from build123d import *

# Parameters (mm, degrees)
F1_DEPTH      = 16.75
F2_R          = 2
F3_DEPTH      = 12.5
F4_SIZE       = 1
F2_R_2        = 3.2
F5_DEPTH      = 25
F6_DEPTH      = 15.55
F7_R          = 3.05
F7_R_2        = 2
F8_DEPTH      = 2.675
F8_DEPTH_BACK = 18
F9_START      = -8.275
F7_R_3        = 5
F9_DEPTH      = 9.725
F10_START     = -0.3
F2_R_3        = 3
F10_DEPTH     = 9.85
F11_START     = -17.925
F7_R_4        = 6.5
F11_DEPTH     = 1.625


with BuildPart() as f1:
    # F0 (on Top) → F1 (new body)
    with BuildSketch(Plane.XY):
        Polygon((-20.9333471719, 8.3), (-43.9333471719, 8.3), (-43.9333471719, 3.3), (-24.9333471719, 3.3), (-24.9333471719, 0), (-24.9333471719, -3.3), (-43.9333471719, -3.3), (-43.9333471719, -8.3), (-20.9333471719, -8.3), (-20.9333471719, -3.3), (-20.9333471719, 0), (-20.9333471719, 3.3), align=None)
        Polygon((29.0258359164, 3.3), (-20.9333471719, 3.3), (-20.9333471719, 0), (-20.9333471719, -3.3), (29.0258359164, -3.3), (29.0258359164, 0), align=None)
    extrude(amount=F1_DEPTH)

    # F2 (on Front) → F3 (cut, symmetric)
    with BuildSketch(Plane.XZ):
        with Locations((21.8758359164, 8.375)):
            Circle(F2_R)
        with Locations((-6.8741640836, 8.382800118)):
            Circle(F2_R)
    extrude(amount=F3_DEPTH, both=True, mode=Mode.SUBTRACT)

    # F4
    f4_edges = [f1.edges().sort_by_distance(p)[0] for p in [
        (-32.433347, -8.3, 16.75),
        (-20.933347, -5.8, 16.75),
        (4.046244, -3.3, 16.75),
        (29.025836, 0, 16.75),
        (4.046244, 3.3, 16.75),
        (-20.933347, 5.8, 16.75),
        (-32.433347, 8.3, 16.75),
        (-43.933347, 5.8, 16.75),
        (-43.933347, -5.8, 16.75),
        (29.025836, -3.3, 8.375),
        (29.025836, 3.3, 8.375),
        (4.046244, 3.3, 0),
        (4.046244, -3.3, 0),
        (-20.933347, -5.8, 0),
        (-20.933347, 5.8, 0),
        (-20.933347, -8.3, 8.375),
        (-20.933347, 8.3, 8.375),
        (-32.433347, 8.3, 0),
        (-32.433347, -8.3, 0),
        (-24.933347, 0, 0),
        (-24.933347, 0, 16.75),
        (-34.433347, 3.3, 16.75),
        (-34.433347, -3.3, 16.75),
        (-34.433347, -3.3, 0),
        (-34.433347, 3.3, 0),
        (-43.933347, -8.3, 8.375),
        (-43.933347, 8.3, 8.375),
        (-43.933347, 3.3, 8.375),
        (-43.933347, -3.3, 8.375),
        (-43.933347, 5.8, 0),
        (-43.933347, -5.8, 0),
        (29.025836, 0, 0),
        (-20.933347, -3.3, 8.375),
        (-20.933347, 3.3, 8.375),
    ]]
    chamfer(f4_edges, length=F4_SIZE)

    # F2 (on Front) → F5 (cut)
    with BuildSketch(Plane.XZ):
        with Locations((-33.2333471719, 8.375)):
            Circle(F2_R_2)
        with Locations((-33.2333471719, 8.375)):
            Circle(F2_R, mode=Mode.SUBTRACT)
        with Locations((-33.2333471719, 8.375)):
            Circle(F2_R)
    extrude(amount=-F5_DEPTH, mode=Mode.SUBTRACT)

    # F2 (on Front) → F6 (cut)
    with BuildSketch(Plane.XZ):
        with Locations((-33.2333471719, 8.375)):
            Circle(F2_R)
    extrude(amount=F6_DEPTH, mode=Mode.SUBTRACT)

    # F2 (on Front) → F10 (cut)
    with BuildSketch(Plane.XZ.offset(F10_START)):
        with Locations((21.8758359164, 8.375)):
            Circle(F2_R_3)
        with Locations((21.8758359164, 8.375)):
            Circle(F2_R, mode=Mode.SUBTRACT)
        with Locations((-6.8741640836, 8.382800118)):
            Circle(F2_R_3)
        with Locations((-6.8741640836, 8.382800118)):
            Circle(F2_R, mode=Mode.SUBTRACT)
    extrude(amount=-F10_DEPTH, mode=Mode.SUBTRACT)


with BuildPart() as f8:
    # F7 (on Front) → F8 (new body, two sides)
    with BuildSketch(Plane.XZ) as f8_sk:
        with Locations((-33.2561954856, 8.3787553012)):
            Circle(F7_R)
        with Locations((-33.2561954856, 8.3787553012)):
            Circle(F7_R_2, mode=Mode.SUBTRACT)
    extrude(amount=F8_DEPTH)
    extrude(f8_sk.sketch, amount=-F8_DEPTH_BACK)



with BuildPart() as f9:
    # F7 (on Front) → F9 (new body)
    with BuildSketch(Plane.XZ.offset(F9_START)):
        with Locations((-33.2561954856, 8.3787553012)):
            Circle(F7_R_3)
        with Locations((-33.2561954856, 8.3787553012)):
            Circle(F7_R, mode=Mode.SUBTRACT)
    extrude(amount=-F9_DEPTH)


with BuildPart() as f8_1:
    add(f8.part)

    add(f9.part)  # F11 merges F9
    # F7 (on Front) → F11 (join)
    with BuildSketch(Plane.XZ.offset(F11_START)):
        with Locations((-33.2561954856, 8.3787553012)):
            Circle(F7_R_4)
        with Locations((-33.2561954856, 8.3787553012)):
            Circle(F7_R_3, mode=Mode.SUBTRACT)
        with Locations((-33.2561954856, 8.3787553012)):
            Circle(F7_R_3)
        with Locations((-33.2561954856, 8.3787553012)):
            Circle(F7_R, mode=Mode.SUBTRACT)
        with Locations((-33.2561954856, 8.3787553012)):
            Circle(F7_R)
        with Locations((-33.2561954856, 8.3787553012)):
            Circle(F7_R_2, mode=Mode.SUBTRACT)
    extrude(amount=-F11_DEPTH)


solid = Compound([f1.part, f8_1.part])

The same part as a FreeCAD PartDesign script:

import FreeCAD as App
import Part
import Sketcher
from FreeCAD import Vector


def edges_at(feature, points):
    """Names of the edges that pass closest to the given points."""
    edges = feature.Shape.Edges
    near = lambda p: min(range(len(edges)), key=lambda i: edges[i].distToShape(Part.Vertex(*p))[0])
    return sorted({f"Edge{near(p) + 1}" for p in points})


def add_polygon(sketch, points):
    """Adds a closed chain of lines whose ends are joined by coincident constraints."""
    first, n = sketch.GeometryCount, len(points)
    for a, b in zip(points, points[1:] + points[:1]):
        sketch.addGeometry(Part.LineSegment(App.Vector(*a, 0), App.Vector(*b, 0)), False)
    for i in range(n):
        sketch.addConstraint(Sketcher.Constraint("Coincident", first + i, 2, first + (i + 1) % n, 1))

doc = App.newDocument("Part")
body = doc.addObject("PartDesign::Body", "Body")

sketch1 = body.newObject("Sketcher::SketchObject", "Sketch")
sketch1.AttachmentSupport = (doc.getObject("XY_Plane"), [""])
sketch1.MapMode = "FlatFace"
add_polygon(sketch1, [(-20.933347, 8.3), (-43.933347, 8.3), (-43.933347, 3.3), (-24.933347, 3.3), (-24.933347, -3.3), (-43.933347, -3.3), (-43.933347, -8.3), (-20.933347, -8.3), (-20.933347, -3.3), (29.025836, -3.3), (29.025836, 3.3), (-20.933347, 3.3)])
sketch1.addConstraint(Sketcher.Constraint("Horizontal", 0))
sketch1.addConstraint(Sketcher.Constraint("Vertical", 1))
sketch1.addConstraint(Sketcher.Constraint("Horizontal", 2))
sketch1.addConstraint(Sketcher.Constraint("Vertical", 3))
sketch1.addConstraint(Sketcher.Constraint("Horizontal", 4))
sketch1.addConstraint(Sketcher.Constraint("Vertical", 5))
sketch1.addConstraint(Sketcher.Constraint("Horizontal", 6))
sketch1.addConstraint(Sketcher.Constraint("Vertical", 7))
sketch1.addConstraint(Sketcher.Constraint("Horizontal", 8))
sketch1.addConstraint(Sketcher.Constraint("Vertical", 9))
sketch1.addConstraint(Sketcher.Constraint("Horizontal", 10))
sketch1.addConstraint(Sketcher.Constraint("Vertical", 11))
sketch1.addConstraint(Sketcher.Constraint("Symmetric", 1, 2, 4, 2, -1))
sketch1.addConstraint(Sketcher.Constraint("Symmetric", 7, 2, 10, 2, -1))
sketch1.addConstraint(Sketcher.Constraint("Horizontal", 4, 2, 7, 2))
sketch1.addConstraint(Sketcher.Constraint("Equal", 1, 5))
sketch1.addConstraint(Sketcher.Constraint("DistanceX", 0, 2, 0, 1, 23.0))
sketch1.addConstraint(Sketcher.Constraint("DistanceX", 2, 1, 2, 2, 19.0))
sketch1.addConstraint(Sketcher.Constraint("DistanceY", 1, 2, 1, 1, 5.0))
sketch1.addConstraint(Sketcher.Constraint("DistanceY", 3, 2, 3, 1, 6.6))
sketch1.addConstraint(Sketcher.Constraint("DistanceX", 8, 1, 8, 2, 49.959183))
sketch1.addConstraint(Sketcher.Constraint("DistanceX", 0, 2, -1, 1, 43.933347))
pad1 = body.newObject("PartDesign::Pad", "Pad")
pad1.Profile = sketch1
pad1.Length = 16.75

sketch2 = body.newObject("Sketcher::SketchObject", "Sketch001")
sketch2.AttachmentSupport = (doc.getObject("XZ_Plane"), [""])
sketch2.MapMode = "FlatFace"
sketch2.addGeometry(Part.Circle(Vector(21.875836, 8.375, 0), Vector(0, 0, 1), 2), False)
sketch2.addGeometry(Part.Circle(Vector(-6.874164, 8.3828, 0), Vector(0, 0, 1), 2), False)
sketch2.addConstraint(Sketcher.Constraint("Equal", 0, 1))
sketch2.addConstraint(Sketcher.Constraint("Diameter", 0, 4.0))
sketch2.addConstraint(Sketcher.Constraint("DistanceX", 1, 3, 0, 3, 28.75))
sketch2.addConstraint(Sketcher.Constraint("DistanceY", -1, 1, 0, 3, 8.375))
sketch2.addConstraint(Sketcher.Constraint("DistanceY", -1, 1, 1, 3, 8.3828))
sketch2.addConstraint(Sketcher.Constraint("DistanceX", -1, 1, 0, 3, 21.875836))
pocket1 = body.newObject("PartDesign::Pocket", "Pocket")
pocket1.Profile = sketch2
pocket1.Length = 25
pocket1.Midplane = True
doc.recompute()

chamfer = body.newObject("PartDesign::Chamfer", "Chamfer")
chamfer.Base = (pocket1, edges_at(pocket1, [
    (-32.433, -8.3, 16.75),
    (-20.933, -5.8, 16.75),
    (4.046, -3.3, 16.75),
    (29.026, 0, 16.75),
    (4.046, 3.3, 16.75),
    (-20.933, 5.8, 16.75),
    (-32.433, 8.3, 16.75),
    (-43.933, 5.8, 16.75),
    (-43.933, -5.8, 16.75),
    (29.026, -3.3, 8.375),
    (29.026, 3.3, 8.375),
    (4.046, 3.3, 0),
    (4.046, -3.3, 0),
    (-20.933, -5.8, 0),
    (-20.933, 5.8, 0),
    (-20.933, -8.3, 8.375),
    (-20.933, 8.3, 8.375),
    (-32.433, 8.3, 0),
    (-32.433, -8.3, 0),
    (-24.933, 0, 0),
    (-24.933, 0, 16.75),
    (-34.433, 3.3, 16.75),
    (-34.433, -3.3, 16.75),
    (-34.433, -3.3, 0),
    (-34.433, 3.3, 0),
    (-43.933, -8.3, 8.375),
    (-43.933, 8.3, 8.375),
    (-43.933, 3.3, 8.375),
    (-43.933, -3.3, 8.375),
    (-43.933, 5.8, 0),
    (-43.933, -5.8, 0),
    (29.026, 0, 0),
    (-20.933, -3.3, 8.375),
    (-20.933, 3.3, 8.375),
]))
chamfer.Size = 1

sketch3 = body.newObject("Sketcher::SketchObject", "Sketch002")
sketch3.AttachmentSupport = (doc.getObject("XZ_Plane"), [""])
sketch3.MapMode = "FlatFace"
sketch3.addGeometry(Part.Circle(Vector(-33.233347, 8.375, 0), Vector(0, 0, 1), 3.2), False)
sketch3.addConstraint(Sketcher.Constraint("Diameter", 0, 6.4))
sketch3.addConstraint(Sketcher.Constraint("DistanceY", -1, 1, 0, 3, 8.375))
sketch3.addConstraint(Sketcher.Constraint("DistanceX", 0, 3, -1, 1, 33.233347))
pocket2 = body.newObject("PartDesign::Pocket", "Pocket001")
pocket2.Profile = sketch3
pocket2.Length = 25

sketch4 = body.newObject("Sketcher::SketchObject", "Sketch003")
sketch4.AttachmentSupport = (doc.getObject("XZ_Plane"), [""])
sketch4.MapMode = "FlatFace"
sketch4.addGeometry(Part.Circle(Vector(-33.233347, 8.375, 0), Vector(0, 0, 1), 2), False)
sketch4.addConstraint(Sketcher.Constraint("Diameter", 0, 4.0))
sketch4.addConstraint(Sketcher.Constraint("DistanceY", -1, 1, 0, 3, 8.375))
sketch4.addConstraint(Sketcher.Constraint("DistanceX", 0, 3, -1, 1, 33.233347))
pocket3 = body.newObject("PartDesign::Pocket", "Pocket002")
pocket3.Profile = sketch4
pocket3.Length = 15.55
pocket3.Reversed = True

sketch5 = body.newObject("Sketcher::SketchObject", "Sketch004")
sketch5.AttachmentSupport = (doc.getObject("XZ_Plane"), [""])
sketch5.MapMode = "FlatFace"
sketch5.AttachmentOffset = App.Placement(Vector(0, 0, -0.3), App.Rotation())
sketch5.addGeometry(Part.Circle(Vector(21.875836, 8.375, 0), Vector(0, 0, 1), 3), False)
sketch5.addGeometry(Part.Circle(Vector(21.875836, 8.375, 0), Vector(0, 0, 1), 2), False)
sketch5.addGeometry(Part.Circle(Vector(-6.874164, 8.3828, 0), Vector(0, 0, 1), 3), False)
sketch5.addGeometry(Part.Circle(Vector(-6.874164, 8.3828, 0), Vector(0, 0, 1), 2), False)
sketch5.addConstraint(Sketcher.Constraint("Coincident", 1, 3, 0, 3))
sketch5.addConstraint(Sketcher.Constraint("Coincident", 3, 3, 2, 3))
sketch5.addConstraint(Sketcher.Constraint("Equal", 0, 2))
sketch5.addConstraint(Sketcher.Constraint("Equal", 1, 3))
sketch5.addConstraint(Sketcher.Constraint("Diameter", 0, 6.0))
sketch5.addConstraint(Sketcher.Constraint("Diameter", 1, 4.0))
sketch5.addConstraint(Sketcher.Constraint("DistanceX", 2, 3, 0, 3, 28.75))
sketch5.addConstraint(Sketcher.Constraint("DistanceY", -1, 1, 0, 3, 8.375))
sketch5.addConstraint(Sketcher.Constraint("DistanceY", -1, 1, 2, 3, 8.3828))
sketch5.addConstraint(Sketcher.Constraint("DistanceX", -1, 1, 0, 3, 21.875836))
pocket4 = body.newObject("PartDesign::Pocket", "Pocket003")
pocket4.Profile = sketch5
pocket4.Length = 9.85
body2 = doc.addObject("PartDesign::Body", "Body001")

sketch6 = body2.newObject("Sketcher::SketchObject", "Sketch005")
sketch6.AttachmentSupport = (doc.getObject("XZ_Plane001"), [""])
sketch6.MapMode = "FlatFace"
sketch6.addGeometry(Part.Circle(Vector(-33.256195, 8.378755, 0), Vector(0, 0, 1), 3.05), False)
sketch6.addGeometry(Part.Circle(Vector(-33.256195, 8.378755, 0), Vector(0, 0, 1), 2), False)
sketch6.addConstraint(Sketcher.Constraint("Coincident", 1, 3, 0, 3))
sketch6.addConstraint(Sketcher.Constraint("Diameter", 1, 4.0))
sketch6.addConstraint(Sketcher.Constraint("Diameter", 0, 6.1))
sketch6.addConstraint(Sketcher.Constraint("DistanceX", 0, 3, -1, 1, 33.256195))
sketch6.addConstraint(Sketcher.Constraint("DistanceY", -1, 1, 0, 3, 8.378755))
pad2 = body2.newObject("PartDesign::Pad", "Pad001")
pad2.Profile = sketch6
pad2.Type = "TwoLengths"
pad2.Length = 2.675
pad2.Length2 = 18
body3 = doc.addObject("PartDesign::Body", "Body002")

sketch7 = body3.newObject("Sketcher::SketchObject", "Sketch006")
sketch7.AttachmentSupport = (doc.getObject("XZ_Plane002"), [""])
sketch7.MapMode = "FlatFace"
sketch7.AttachmentOffset = App.Placement(Vector(0, 0, -8.275), App.Rotation())
sketch7.addGeometry(Part.Circle(Vector(-33.256195, 8.378755, 0), Vector(0, 0, 1), 5), False)
sketch7.addGeometry(Part.Circle(Vector(-33.256195, 8.378755, 0), Vector(0, 0, 1), 3.05), False)
sketch7.addConstraint(Sketcher.Constraint("Coincident", 1, 3, 0, 3))
sketch7.addConstraint(Sketcher.Constraint("Diameter", 0, 10.0))
sketch7.addConstraint(Sketcher.Constraint("Diameter", 1, 6.1))
sketch7.addConstraint(Sketcher.Constraint("DistanceX", 0, 3, -1, 1, 33.256195))
sketch7.addConstraint(Sketcher.Constraint("DistanceY", -1, 1, 0, 3, 8.378755))
pad3 = body3.newObject("PartDesign::Pad", "Pad002")
pad3.Profile = sketch7
pad3.Length = 9.725
pad3.Reversed = True
doc.recompute()

boolean = body2.newObject("PartDesign::Boolean", "Boolean")
boolean.Type = "Fuse"
boolean.addObjects([body3])

sketch8 = body2.newObject("Sketcher::SketchObject", "Sketch007")
sketch8.AttachmentSupport = (doc.getObject("XZ_Plane001"), [""])
sketch8.MapMode = "FlatFace"
sketch8.AttachmentOffset = App.Placement(Vector(0, 0, -17.925), App.Rotation())
sketch8.addGeometry(Part.Circle(Vector(-33.256195, 8.378755, 0), Vector(0, 0, 1), 6.5), False)
sketch8.addGeometry(Part.Circle(Vector(-33.256195, 8.378755, 0), Vector(0, 0, 1), 2), False)
sketch8.addConstraint(Sketcher.Constraint("Coincident", 1, 3, 0, 3))
sketch8.addConstraint(Sketcher.Constraint("Diameter", 0, 13.0))
sketch8.addConstraint(Sketcher.Constraint("Diameter", 1, 4.0))
sketch8.addConstraint(Sketcher.Constraint("DistanceX", 0, 3, -1, 1, 33.256195))
sketch8.addConstraint(Sketcher.Constraint("DistanceY", -1, 1, 0, 3, 8.378755))
pad4 = body2.newObject("PartDesign::Pad", "Pad003")
pad4.Profile = sketch8
pad4.Length = 1.625
pad4.Reversed = True

doc.recompute()
